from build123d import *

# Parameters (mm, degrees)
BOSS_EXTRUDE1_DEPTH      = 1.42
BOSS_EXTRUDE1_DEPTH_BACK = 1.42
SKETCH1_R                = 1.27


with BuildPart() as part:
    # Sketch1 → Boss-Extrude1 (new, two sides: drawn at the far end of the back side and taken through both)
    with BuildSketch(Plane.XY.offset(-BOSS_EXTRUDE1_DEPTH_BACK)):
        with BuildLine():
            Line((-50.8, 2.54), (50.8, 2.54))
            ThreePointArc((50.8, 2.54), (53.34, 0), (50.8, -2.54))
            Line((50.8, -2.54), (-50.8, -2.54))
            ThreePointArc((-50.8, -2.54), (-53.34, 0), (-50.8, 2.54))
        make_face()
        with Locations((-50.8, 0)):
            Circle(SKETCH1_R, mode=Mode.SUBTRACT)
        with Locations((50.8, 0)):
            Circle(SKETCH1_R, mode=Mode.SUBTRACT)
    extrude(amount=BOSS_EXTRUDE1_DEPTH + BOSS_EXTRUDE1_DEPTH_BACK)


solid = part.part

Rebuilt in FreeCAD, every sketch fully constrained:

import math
import FreeCAD as App
import Part
import Sketcher

V = App.Vector
Q = App.Units.Quantity

doc = App.newDocument("Part")
body = doc.addObject("PartDesign::Body", "Body")

sketch1 = body.newObject("Sketcher::SketchObject", "Sketch")
sketch1.AttachmentSupport = (doc.getObject("XY_Plane"), [""])
sketch1.MapMode = "FlatFace"
sketch1.addGeometry([
    Part.LineSegment(V(50.8, 2.54, 0), V(-50.8, 2.54, 0)),
    Part.ArcOfCircle(Part.Circle(V(-50.8, 0, 0), V(0, 0, 1), 2.54), math.radians(90), math.radians(270)),
    Part.LineSegment(V(-50.8, -2.54, 0), V(50.8, -2.54, 0)),
    Part.ArcOfCircle(Part.Circle(V(50.8, 0, 0), V(0, 0, 1), 2.54), math.radians(-90), math.radians(90)),
    Part.Circle(V(50.8, 0, 0), V(0, 0, 1), 1.27),
    Part.Circle(V(-50.8, 0, 0), V(0, 0, 1), 1.27),
], False)
sketch1.addConstraint([
    Sketcher.Constraint("Tangent", 0, 2, 1, 1),
    Sketcher.Constraint("Tangent", 1, 2, 2, 1),
    Sketcher.Constraint("Tangent", 2, 2, 3, 1),
    Sketcher.Constraint("Tangent", 3, 2, 0, 1),
    Sketcher.Constraint("Horizontal", 0),
    Sketcher.Constraint("Horizontal", 2),
    Sketcher.Constraint("Coincident", 4, 3, 3, 3),
    Sketcher.Constraint("Coincident", 5, 3, 1, 3),
    Sketcher.Constraint("Equal", 4, 5),
    Sketcher.Constraint("Symmetric", 1, 3, 3, 3, -1, 1),
    Sketcher.Constraint("Diameter", 4, Q("0.1 in")),
    Sketcher.Constraint("Radius", 1, Q("0.1 in")),
    Sketcher.Constraint("DistanceX", 0, 2, 0, 1, Q("4 in")),
])
pad1 = body.newObject("PartDesign::Pad", "Pad")
pad1.Profile = sketch1
pad1.Type = "TwoLengths"
pad1.Length = 1.42
pad1.Length2 = 1.42

doc.recompute()
